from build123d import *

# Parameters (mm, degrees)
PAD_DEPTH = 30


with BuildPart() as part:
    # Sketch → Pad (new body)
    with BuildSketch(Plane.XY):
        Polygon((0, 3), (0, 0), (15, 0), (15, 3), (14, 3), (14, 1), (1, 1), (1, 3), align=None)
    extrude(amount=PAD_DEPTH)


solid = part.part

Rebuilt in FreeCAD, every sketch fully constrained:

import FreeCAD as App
import Part
import Sketcher

doc = App.newDocument("Part")
params = doc.addObject("Spreadsheet::Sheet", "Params")
for row, (alias, value) in enumerate([
    ("sketch1_width", "15 mm"),
    ("sketch1_width2", "1 mm"),
    ("sketch1_height", "3 mm"),
    ("sketch1_height2", "2 mm"),
    ("pad1_length", "30 mm"),
], start=1):
    params.set(f"A{row}", alias)
    params.set(f"B{row}", "=" + value)
    params.setAlias(f"B{row}", alias)

body = doc.addObject("PartDesign::Body", "Body")

# Sketch on XY plane
sketch1 = body.newObject("Sketcher::SketchObject", "Sketch")
sketch1.AttachmentSupport = (doc.getObject("XY_Plane"), [""])
sketch1.MapMode = "FlatFace"
sketch1.addGeometry(Part.LineSegment(App.Vector(0, 3, 0), App.Vector(0, 0, 0)), False)
sketch1.addGeometry(Part.LineSegment(App.Vector(0, 0, 0), App.Vector(15, 0, 0)), False)
sketch1.addGeometry(Part.LineSegment(App.Vector(15, 0, 0), App.Vector(15, 3, 0)), False)
sketch1.addGeometry(Part.LineSegment(App.Vector(15, 3, 0), App.Vector(14, 3, 0)), False)
sketch1.addGeometry(Part.LineSegment(App.Vector(14, 3, 0), App.Vector(14, 1, 0)), False)
sketch1.addGeometry(Part.LineSegment(App.Vector(14, 1, 0), App.Vector(1, 1, 0)), False)
sketch1.addGeometry(Part.LineSegment(App.Vector(1, 1, 0), App.Vector(1, 3, 0)), False)
sketch1.addGeometry(Part.LineSegment(App.Vector(1, 3, 0), App.Vector(0, 3, 0)), False)
sketch1.addConstraint(Sketcher.Constraint("Coincident", 0, 2, 1, 1))
sketch1.addConstraint(Sketcher.Constraint("Coincident", 1, 2, 2, 1))
sketch1.addConstraint(Sketcher.Constraint("Coincident", 2, 2, 3, 1))
sketch1.addConstraint(Sketcher.Constraint("Coincident", 3, 2, 4, 1))
sketch1.addConstraint(Sketcher.Constraint("Coincident", 4, 2, 5, 1))
sketch1.addConstraint(Sketcher.Constraint("Coincident", 5, 2, 6, 1))
sketch1.addConstraint(Sketcher.Constraint("Coincident", 6, 2, 7, 1))
sketch1.addConstraint(Sketcher.Constraint("Coincident", 7, 2, 0, 1))
sketch1.addConstraint(Sketcher.Constraint("Vertical", 0))
sketch1.addConstraint(Sketcher.Constraint("Horizontal", 1))
sketch1.addConstraint(Sketcher.Constraint("Vertical", 2))
sketch1.addConstraint(Sketcher.Constraint("Horizontal", 3))
sketch1.addConstraint(Sketcher.Constraint("Vertical", 4))
sketch1.addConstraint(Sketcher.Constraint("Horizontal", 5))
sketch1.addConstraint(Sketcher.Constraint("Vertical", 6))
sketch1.addConstraint(Sketcher.Constraint("Horizontal", 7))
sketch1.addConstraint(Sketcher.Constraint("Coincident", 0, 2, -1, 1))
sketch1.addConstraint(Sketcher.Constraint("Horizontal", 3, 2, 6, 2))
sketch1.addConstraint(Sketcher.Constraint("Equal", 3, 7))
sketch1.addConstraint(Sketcher.Constraint("DistanceX", 1, 1, 1, 2, 15.0))
sketch1.addConstraint(Sketcher.Constraint("DistanceX", 3, 2, 3, 1, 1.0))
sketch1.addConstraint(Sketcher.Constraint("DistanceY", 0, 2, 0, 1, 3.0))
sketch1.addConstraint(Sketcher.Constraint("DistanceY", 4, 2, 4, 1, 2.0))
sketch1.setExpression("Constraints[19]", "Params.sketch1_width")
sketch1.setExpression("Constraints[20]", "Params.sketch1_width2")
sketch1.setExpression("Constraints[21]", "Params.sketch1_height")
sketch1.setExpression("Constraints[22]", "Params.sketch1_height2")
pad1 = body.newObject("PartDesign::Pad", "Pad")
pad1.Profile = sketch1
pad1.setExpression("Length", "Params.pad1_length")

doc.recompute()
